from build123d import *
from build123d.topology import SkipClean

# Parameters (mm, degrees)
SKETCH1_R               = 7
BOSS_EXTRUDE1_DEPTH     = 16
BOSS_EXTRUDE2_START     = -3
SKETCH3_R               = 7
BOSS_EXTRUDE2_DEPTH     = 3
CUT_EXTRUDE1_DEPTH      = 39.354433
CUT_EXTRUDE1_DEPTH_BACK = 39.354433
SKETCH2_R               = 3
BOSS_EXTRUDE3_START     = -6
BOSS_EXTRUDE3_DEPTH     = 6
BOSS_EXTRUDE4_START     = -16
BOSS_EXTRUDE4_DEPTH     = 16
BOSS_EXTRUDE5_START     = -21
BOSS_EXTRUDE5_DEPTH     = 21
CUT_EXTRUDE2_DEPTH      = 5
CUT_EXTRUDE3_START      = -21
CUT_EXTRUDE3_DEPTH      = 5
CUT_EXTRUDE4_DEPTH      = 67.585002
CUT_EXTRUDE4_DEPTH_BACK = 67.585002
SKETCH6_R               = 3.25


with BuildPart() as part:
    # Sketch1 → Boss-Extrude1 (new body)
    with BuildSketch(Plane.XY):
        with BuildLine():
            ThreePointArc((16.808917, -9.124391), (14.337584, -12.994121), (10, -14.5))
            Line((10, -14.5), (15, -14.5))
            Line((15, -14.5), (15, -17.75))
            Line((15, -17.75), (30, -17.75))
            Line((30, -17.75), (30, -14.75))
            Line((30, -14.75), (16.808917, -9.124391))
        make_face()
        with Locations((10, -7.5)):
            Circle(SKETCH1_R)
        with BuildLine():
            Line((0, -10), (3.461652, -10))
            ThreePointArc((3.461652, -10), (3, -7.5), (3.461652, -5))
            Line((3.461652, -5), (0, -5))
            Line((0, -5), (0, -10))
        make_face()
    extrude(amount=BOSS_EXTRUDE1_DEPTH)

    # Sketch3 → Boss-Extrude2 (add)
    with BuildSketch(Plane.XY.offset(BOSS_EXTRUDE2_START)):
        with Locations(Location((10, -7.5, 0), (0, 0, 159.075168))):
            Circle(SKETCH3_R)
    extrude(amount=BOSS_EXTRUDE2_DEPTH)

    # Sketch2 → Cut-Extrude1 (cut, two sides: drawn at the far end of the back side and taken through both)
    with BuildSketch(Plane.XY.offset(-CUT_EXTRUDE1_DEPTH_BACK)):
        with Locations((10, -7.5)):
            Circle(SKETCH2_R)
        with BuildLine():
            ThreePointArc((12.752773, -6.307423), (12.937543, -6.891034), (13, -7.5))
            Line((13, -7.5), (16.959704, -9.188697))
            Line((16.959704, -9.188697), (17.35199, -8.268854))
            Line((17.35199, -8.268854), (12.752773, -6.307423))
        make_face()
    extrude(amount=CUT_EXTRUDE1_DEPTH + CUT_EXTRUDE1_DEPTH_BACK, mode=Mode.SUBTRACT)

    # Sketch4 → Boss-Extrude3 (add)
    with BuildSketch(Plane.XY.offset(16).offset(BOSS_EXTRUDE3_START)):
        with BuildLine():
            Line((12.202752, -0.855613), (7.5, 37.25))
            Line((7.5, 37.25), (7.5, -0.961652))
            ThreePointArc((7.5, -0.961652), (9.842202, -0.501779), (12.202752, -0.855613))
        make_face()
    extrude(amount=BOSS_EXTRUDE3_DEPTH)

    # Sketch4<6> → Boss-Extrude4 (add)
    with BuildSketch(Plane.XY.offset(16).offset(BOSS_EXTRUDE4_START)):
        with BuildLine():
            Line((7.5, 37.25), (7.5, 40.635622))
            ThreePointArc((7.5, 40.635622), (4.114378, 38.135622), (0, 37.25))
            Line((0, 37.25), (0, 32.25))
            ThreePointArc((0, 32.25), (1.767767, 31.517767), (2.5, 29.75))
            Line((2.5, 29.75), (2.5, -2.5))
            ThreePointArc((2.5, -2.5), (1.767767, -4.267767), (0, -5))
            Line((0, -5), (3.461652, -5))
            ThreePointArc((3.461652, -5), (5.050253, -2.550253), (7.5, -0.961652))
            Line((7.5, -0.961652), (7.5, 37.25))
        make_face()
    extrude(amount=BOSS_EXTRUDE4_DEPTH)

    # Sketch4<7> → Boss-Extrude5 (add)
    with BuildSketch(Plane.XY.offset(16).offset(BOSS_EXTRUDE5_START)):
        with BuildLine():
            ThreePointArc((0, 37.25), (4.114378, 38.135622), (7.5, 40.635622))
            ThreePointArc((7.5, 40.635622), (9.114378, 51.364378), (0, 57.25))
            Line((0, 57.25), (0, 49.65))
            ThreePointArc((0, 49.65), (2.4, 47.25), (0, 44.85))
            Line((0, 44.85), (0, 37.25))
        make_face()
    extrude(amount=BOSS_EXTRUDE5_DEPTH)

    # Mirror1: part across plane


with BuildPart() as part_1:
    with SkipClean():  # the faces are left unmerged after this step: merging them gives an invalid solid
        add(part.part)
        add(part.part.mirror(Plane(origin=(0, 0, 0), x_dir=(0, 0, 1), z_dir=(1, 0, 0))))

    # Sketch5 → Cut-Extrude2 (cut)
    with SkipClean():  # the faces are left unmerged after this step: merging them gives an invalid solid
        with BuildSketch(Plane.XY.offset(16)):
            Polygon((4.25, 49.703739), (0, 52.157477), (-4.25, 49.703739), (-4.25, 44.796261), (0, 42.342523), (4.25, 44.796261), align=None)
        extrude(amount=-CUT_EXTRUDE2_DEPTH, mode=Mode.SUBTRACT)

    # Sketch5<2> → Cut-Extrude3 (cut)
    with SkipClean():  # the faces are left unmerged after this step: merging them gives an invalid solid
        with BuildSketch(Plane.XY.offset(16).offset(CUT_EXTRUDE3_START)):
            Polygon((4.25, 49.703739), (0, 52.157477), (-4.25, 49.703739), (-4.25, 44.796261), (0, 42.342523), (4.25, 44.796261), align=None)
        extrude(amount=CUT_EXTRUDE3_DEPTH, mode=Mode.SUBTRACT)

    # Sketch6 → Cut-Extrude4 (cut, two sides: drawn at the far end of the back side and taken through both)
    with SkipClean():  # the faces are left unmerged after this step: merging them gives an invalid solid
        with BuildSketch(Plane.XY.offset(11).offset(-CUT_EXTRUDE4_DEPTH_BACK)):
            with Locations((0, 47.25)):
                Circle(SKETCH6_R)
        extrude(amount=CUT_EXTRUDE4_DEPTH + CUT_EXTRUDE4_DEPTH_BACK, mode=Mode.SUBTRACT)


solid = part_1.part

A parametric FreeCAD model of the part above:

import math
import FreeCAD as App
import Part
import Sketcher
Q = App.Units.Quantity


def add_polygon(sketch, points):
    """Adds a closed chain of lines whose ends are joined by coincident constraints."""
    first, n = sketch.GeometryCount, len(points)
    for a, b in zip(points, points[1:] + points[:1]):
        sketch.addGeometry(Part.LineSegment(App.Vector(*a, 0), App.Vector(*b, 0)), False)
    for i in range(n):
        sketch.addConstraint(Sketcher.Constraint("Coincident", first + i, 2, first + (i + 1) % n, 1))

doc = App.newDocument("Part")
body = doc.addObject("PartDesign::Body", "Body")

# Sketch on XY plane
sketch1 = body.newObject("Sketcher::SketchObject", "Sketch")
sketch1.AttachmentSupport = (doc.getObject("XY_Plane"), [""])
sketch1.MapMode = "FlatFace"
sketch1.addGeometry([
    Part.LineSegment(App.Vector(10, -14.5, 0), App.Vector(15, -14.5, 0)),  # 0
    Part.LineSegment(App.Vector(15, -14.5, 0), App.Vector(15, -17.8, 0)),  # 1
    Part.LineSegment(App.Vector(15, -17.8, 0), App.Vector(30, -17.8, 0)),  # 2
    Part.LineSegment(App.Vector(30, -17.8, 0), App.Vector(30, -14.8, 0)),  # 3
    Part.LineSegment(App.Vector(30, -14.8, 0), App.Vector(16.8, -9.1, 0)),  # 4
    Part.ArcOfCircle(Part.Circle(App.Vector(10, -7.5, 0), App.Vector(0, 0, 1), 7), math.radians(-13), math.radians(159)),  # 5
    Part.LineSegment(App.Vector(3.5, -5, 0), App.Vector(0, -5, 0)),  # 6
    Part.LineSegment(App.Vector(0, -5, 0), App.Vector(0, -10, 0)),  # 7
    Part.LineSegment(App.Vector(0, -10, 0), App.Vector(3.5, -10, 0)),  # 8
    Part.ArcOfCircle(Part.Circle(App.Vector(10, -7.5, 0), App.Vector(0, 0, 1), 7), math.radians(-159), math.radians(-90)),  # 9
], False)
sketch1.addConstraint([
    Sketcher.Constraint("Coincident", 0, 2, 1, 1),
    Sketcher.Constraint("Coincident", 1, 2, 2, 1),
    Sketcher.Constraint("Coincident", 2, 2, 3, 1),
    Sketcher.Constraint("Coincident", 3, 2, 4, 1),
    Sketcher.Constraint("Coincident", 4, 2, 5, 1),
    Sketcher.Constraint("Coincident", 5, 2, 6, 1),
    Sketcher.Constraint("Coincident", 6, 2, 7, 1),
    Sketcher.Constraint("Coincident", 7, 2, 8, 1),
    Sketcher.Constraint("Coincident", 8, 2, 9, 1),
    Sketcher.Constraint("Tangent", 9, 2, 0, 1),
    Sketcher.Constraint("Horizontal", 0),
    Sketcher.Constraint("Vertical", 1),
    Sketcher.Constraint("Horizontal", 2),
    Sketcher.Constraint("Vertical", 3),
    Sketcher.Constraint("Horizontal", 6),
    Sketcher.Constraint("Vertical", 7),
    Sketcher.Constraint("Horizontal", 8),
    Sketcher.Constraint("Coincident", 9, 3, 5, 3),
    Sketcher.Constraint("Equal", 5, 9),
    Sketcher.Constraint("PointOnObject", 6, 2, -2),
    Sketcher.Constraint("Vertical", 5, 2, 8, 2),
    Sketcher.Constraint("Equal", 0, 7),
    Sketcher.Constraint("Radius", 5, 7.0),
    Sketcher.Constraint("DistanceX", 0, 1, 0, 2, 5.0),
    Sketcher.Constraint("DistanceX", 2, 1, 2, 2, 15.0),
    Sketcher.Constraint("DistanceY", 3, 1, 3, 2, 3.0),
    Sketcher.Constraint("DistanceX", -1, 1, 5, 3, 10.0),
    Sketcher.Constraint("DistanceY", 5, 2, -1, 1, 5.0),
    Sketcher.Constraint("DistanceY", 1, 2, 1, 1, 3.25),
    Sketcher.Constraint("DistanceY", 4, 2, -1, 1, 9.124391),
])
pad1 = body.newObject("PartDesign::Pad", "Pad")
pad1.Profile = sketch1
pad1.Length = 16

# Sketch on XY plane
sketch2 = body.newObject("Sketcher::SketchObject", "Sketch001")
sketch2.AttachmentSupport = (doc.getObject("XY_Plane"), [""])
sketch2.MapMode = "FlatFace"
sketch2.AttachmentOffset = App.Placement(App.Vector(0, 0, -3), App.Rotation())
sketch2.addGeometry(Part.Circle(App.Vector(10, -8, 0), App.Vector(0, 0, 1), 7), False)
sketch2.addConstraint([
    Sketcher.Constraint("Diameter", 0, 14.0),
    Sketcher.Constraint("DistanceX", -1, 1, 0, 3, 10.0),
    Sketcher.Constraint("DistanceY", 0, 3, -1, 1, 7.5),
])
pad2 = body.newObject("PartDesign::Pad", "Pad001")
pad2.Profile = sketch2
pad2.Length = 3

# Sketch on XY plane
sketch3 = body.newObject("Sketcher::SketchObject", "Sketch002")
sketch3.AttachmentSupport = (doc.getObject("XY_Plane"), [""])
sketch3.MapMode = "FlatFace"
sketch3.addGeometry([
    Part.ArcOfCircle(Part.Circle(App.Vector(10, -7.5, 0), App.Vector(0, 0, 1), 3), math.radians(23), math.radians(360)),
    Part.LineSegment(App.Vector(13, -7.5, 0), App.Vector(17, -9.2, 0)),
    Part.LineSegment(App.Vector(17, -9.2, 0), App.Vector(17.4, -8.3, 0)),
    Part.LineSegment(App.Vector(17.4, -8.3, 0), App.Vector(12.8, -6.3, 0)),
], False)
sketch3.addConstraint([
    Sketcher.Constraint("Coincident", 0, 2, 1, 1),
    Sketcher.Constraint("Coincident", 1, 2, 2, 1),
    Sketcher.Constraint("Coincident", 2, 2, 3, 1),
    Sketcher.Constraint("Coincident", 3, 2, 0, 1),
    Sketcher.Constraint("Perpendicular", 1, 2),
    Sketcher.Constraint("Perpendicular", 2, 3),
    Sketcher.Constraint("Radius", 0, 3.0),
    Sketcher.Constraint("Distance", 2, 1.0),
    Sketcher.Constraint("Distance", 3, 5.000001),
    Sketcher.Constraint("DistanceX", -1, 1, 0, 3, 10.0),
    Sketcher.Constraint("DistanceY", 0, 3, -1, 1, 7.5),
    Sketcher.Constraint("DistanceY", 0, 2, -1, 1, 7.5),
    Sketcher.Constraint("Distance", 1, 4.304759),
])
pocket1 = body.newObject("PartDesign::Pocket", "Pocket")
pocket1.Profile = sketch3
pocket1.Type = "ThroughAll"
pocket1.Midplane = True

# Sketch on XY plane
sketch4 = body.newObject("Sketcher::SketchObject", "Sketch003")
sketch4.AttachmentSupport = (doc.getObject("XY_Plane"), [""])
sketch4.MapMode = "FlatFace"
sketch4.AttachmentOffset = App.Placement(App.Vector(0, 0, 10), App.Rotation())
sketch4.addGeometry([
    Part.LineSegment(App.Vector(12.2, -0.9, 0), App.Vector(7.5, 37.2, 0)),
    Part.LineSegment(App.Vector(7.5, 37.2, 0), App.Vector(7.5, -1, 0)),
    Part.ArcOfCircle(Part.Circle(App.Vector(10, -7.5, 0), App.Vector(0, 0, 1), 7), math.radians(72), math.radians(111)),
], False)
sketch4.addConstraint([
    Sketcher.Constraint("Coincident", 0, 2, 1, 1),
    Sketcher.Constraint("Coincident", 1, 2, 2, 2),
    Sketcher.Constraint("Coincident", 2, 1, 0, 1),
    Sketcher.Constraint("Vertical", 1),
    Sketcher.Constraint("DistanceX", -1, 1, 2, 3, 10.0),
    Sketcher.Constraint("DistanceX", -1, 1, 0, 2, 7.5),
    Sketcher.Constraint("DistanceY", -1, 1, 0, 2, 37.25),
    Sketcher.Constraint("Radius", 2, 6.999997),
    Sketcher.Constraint("Distance", 0, 38.394708),
    Sketcher.Constraint("DistanceY", 1, 2, 1, 1, 38.211652),
])
pad3 = body.newObject("PartDesign::Pad", "Pad002")
pad3.Profile = sketch4
pad3.Length = 6

# Sketch on XY plane
sketch5 = body.newObject("Sketcher::SketchObject", "Sketch004")
sketch5.AttachmentSupport = (doc.getObject("XY_Plane"), [""])
sketch5.MapMode = "FlatFace"
sketch5.addGeometry([
    Part.ArcOfCircle(Part.Circle(App.Vector(0, 47.3, 0), App.Vector(0, 0, 1), 10), math.radians(-90), math.radians(-41)),  # 0
    Part.LineSegment(App.Vector(0, 37.2, 0), App.Vector(0, 32.2, 0)),  # 1
    Part.ArcOfCircle(Part.Circle(App.Vector(0, 29.8, 0), App.Vector(0, 0, 1), 2.5), math.radians(0), math.radians(90)),  # 2
    Part.LineSegment(App.Vector(2.5, 29.8, 0), App.Vector(2.5, -2.5, 0)),  # 3
    Part.ArcOfCircle(Part.Circle(App.Vector(0, -2.5, 0), App.Vector(0, 0, 1), 2.5), math.radians(-90), math.radians(0)),  # 4
    Part.LineSegment(App.Vector(0, -5, 0), App.Vector(3.5, -5, 0)),  # 5
    Part.ArcOfCircle(Part.Circle(App.Vector(10, -7.5, 0), App.Vector(0, 0, 1), 7), math.radians(111), math.radians(159)),  # 6
    Part.LineSegment(App.Vector(7.5, -1, 0), App.Vector(7.5, 40.6, 0)),  # 7
], False)
sketch5.addConstraint([
    Sketcher.Constraint("Coincident", 0, 1, 1, 1),
    Sketcher.Constraint("Coincident", 1, 2, 2, 2),
    Sketcher.Constraint("Tangent", 2, 1, 3, 1),
    Sketcher.Constraint("Tangent", 3, 2, 4, 2),
    Sketcher.Constraint("Tangent", 4, 1, 5, 1),
    Sketcher.Constraint("Coincident", 5, 2, 6, 2),
    Sketcher.Constraint("Coincident", 6, 1, 7, 1),
    Sketcher.Constraint("Coincident", 7, 2, 0, 2),
    Sketcher.Constraint("Vertical", 1),
    Sketcher.Constraint("Vertical", 3),
    Sketcher.Constraint("Horizontal", 5),
    Sketcher.Constraint("Vertical", 7),
    Sketcher.Constraint("Equal", 2, 4),
    Sketcher.Constraint("PointOnObject", 0, 3, -2),
    Sketcher.Constraint("PointOnObject", 2, 3, -2),
    Sketcher.Constraint("PointOnObject", 0, 1, -2),
    Sketcher.Constraint("Radius", 2, 2.5),
    Sketcher.Constraint("DistanceY", 1, 2, 1, 1, 5.0),
    Sketcher.Constraint("DistanceY", 4, 1, -1, 1, 5.0),
    Sketcher.Constraint("DistanceX", 3, 2, 6, 1, 5.0),
    Sketcher.Constraint("DistanceY", 3, 2, 3, 1, 32.25),
    Sketcher.Constraint("Radius", 0, 10.000003),
    Sketcher.Constraint("Radius", 6, 7.000002),
    Sketcher.Constraint("DistanceX", 5, 1, 5, 2, 3.461652),
    Sketcher.Constraint("DistanceY", 7, 1, 7, 2, 41.597274),
])
pad4 = body.newObject("PartDesign::Pad", "Pad003")
pad4.Profile = sketch5
pad4.Length = 16

# Sketch on XY plane
sketch6 = body.newObject("Sketcher::SketchObject", "Sketch005")
sketch6.AttachmentSupport = (doc.getObject("XY_Plane"), [""])
sketch6.MapMode = "FlatFace"
sketch6.AttachmentOffset = App.Placement(App.Vector(0, 0, -5), App.Rotation())
sketch6.addGeometry([
    Part.ArcOfCircle(Part.Circle(App.Vector(0, 47.3, 0), App.Vector(0, 0, 1), 10), math.radians(-90), math.radians(-41)),  # 0
    Part.ArcOfCircle(Part.Circle(App.Vector(0, 47.2, 0), App.Vector(0, 0, 1), 10), math.radians(-41), math.radians(90)),  # 1
    Part.LineSegment(App.Vector(0, 57.2, 0), App.Vector(0, 49.6, 0)),  # 2
    Part.ArcOfCircle(Part.Circle(App.Vector(0, 47.2, 0), App.Vector(0, 0, 1), 2.4), math.radians(-90), math.radians(90)),  # 3
    Part.LineSegment(App.Vector(0, 44.9, 0), App.Vector(0, 37.2, 0)),  # 4
], False)
sketch6.addConstraint([
    Sketcher.Constraint("Tangent", 0, 2, 1, 1),
    Sketcher.Constraint("Coincident", 1, 2, 2, 1),
    Sketcher.Constraint("Coincident", 2, 2, 3, 2),
    Sketcher.Constraint("Coincident", 3, 1, 4, 1),
    Sketcher.Constraint("Coincident", 4, 2, 0, 1),
    Sketcher.Constraint("Vertical", 2),
    Sketcher.Constraint("Vertical", 4),
    Sketcher.Constraint("Coincident", 3, 3, 0, 3),
    Sketcher.Constraint("PointOnObject", 0, 3, -2),
    Sketcher.Constraint("PointOnObject", 1, 3, -2),
    Sketcher.Constraint("PointOnObject", 1, 2, -2),
    Sketcher.Constraint("PointOnObject", 3, 1, -2),
    Sketcher.Constraint("Radius", 1, 10.0),
    Sketcher.Constraint("Radius", 3, 2.4),
    Sketcher.Constraint("DistanceX", -1, 1, 0, 2, 7.5),
    Sketcher.Constraint("DistanceY", -1, 1, 1, 3, 47.25),
])
pad5 = body.newObject("PartDesign::Pad", "Pad004")
pad5.Profile = sketch6
pad5.Length = 21
body2 = doc.addObject("PartDesign::Body", "Body001")
doc.recompute()

body2.BaseFeature = body
doc.recompute()

mirroring = doc.addObject("Part::Mirroring", "Mirroring")
mirroring.Source = body
mirroring.Base = App.Vector(0, 0, 0)
mirroring.Normal = App.Vector(1, 0, 0)
body3 = doc.addObject("PartDesign::Body", "Body002")
body3.BaseFeature = mirroring
boolean = body2.newObject("PartDesign::Boolean", "Boolean")
boolean.Type = "Fuse"
boolean.addObjects([body3])
doc.recompute()

# Sketch on XY plane
sketch7 = body2.newObject("Sketcher::SketchObject", "Sketch006")
sketch7.AttachmentSupport = (doc.getObject("XY_Plane001"), [""])
sketch7.MapMode = "FlatFace"
sketch7.AttachmentOffset = App.Placement(App.Vector(0, 0, 16), App.Rotation())
add_polygon(sketch7, [(4.2, 49.7), (0, 52.2), (-4.2, 49.7), (-4.2, 44.8), (0, 42.3), (4.2, 44.8)])  # lines 0-5
sketch7.addConstraint([
    Sketcher.Constraint("Vertical", 2),
    Sketcher.Constraint("Vertical", 5),
    Sketcher.Constraint("Symmetric", 2, 2, 4, 2, -2),
    Sketcher.Constraint("PointOnObject", 0, 2, -2),
    Sketcher.Constraint("PointOnObject", 3, 2, -2),
    Sketcher.Constraint("Parallel", 0, 3),
    Sketcher.Constraint("Parallel", 1, 4),
    Sketcher.Constraint("Angle", 0, Q("150.000007 deg")),
    Sketcher.Constraint("DistanceX", 2, 2, 4, 2, 8.5),
    Sketcher.Constraint("DistanceY", 2, 2, 2, 1, 4.907478),
    Sketcher.Constraint("DistanceY", -1, 1, 1, 2, 49.703739),
])
pocket2 = body2.newObject("PartDesign::Pocket", "Pocket001")
pocket2.Profile = sketch7
pocket2.Length = 5

# Sketch on XY plane
sketch8 = body2.newObject("Sketcher::SketchObject", "Sketch007")
sketch8.AttachmentSupport = (doc.getObject("XY_Plane001"), [""])
sketch8.MapMode = "FlatFace"
sketch8.AttachmentOffset = App.Placement(App.Vector(0, 0, -5), App.Rotation())
add_polygon(sketch8, [(4.2, 49.7), (0, 52.2), (-4.2, 49.7), (-4.2, 44.8), (0, 42.3), (4.2, 44.8)])  # lines 0-5
sketch8.addConstraint([
    Sketcher.Constraint("Vertical", 2),
    Sketcher.Constraint("Vertical", 5),
    Sketcher.Constraint("Symmetric", 2, 2, 4, 2, -2),
    Sketcher.Constraint("PointOnObject", 0, 2, -2),
    Sketcher.Constraint("PointOnObject", 3, 2, -2),
    Sketcher.Constraint("Parallel", 0, 3),
    Sketcher.Constraint("Parallel", 1, 4),
    Sketcher.Constraint("Angle", 0, Q("150.000007 deg")),
    Sketcher.Constraint("DistanceX", 2, 2, 4, 2, 8.5),
    Sketcher.Constraint("DistanceY", 2, 2, 2, 1, 4.907478),
    Sketcher.Constraint("DistanceY", -1, 1, 1, 2, 49.703739),
])
pocket3 = body2.newObject("PartDesign::Pocket", "Pocket002")
pocket3.Profile = sketch8
pocket3.Length = 5
pocket3.Reversed = True

# Sketch on XY plane
sketch9 = body2.newObject("Sketcher::SketchObject", "Sketch008")
sketch9.AttachmentSupport = (doc.getObject("XY_Plane001"), [""])
sketch9.MapMode = "FlatFace"
sketch9.AttachmentOffset = App.Placement(App.Vector(0, 0, 11), App.Rotation())
sketch9.addGeometry(Part.Circle(App.Vector(0, 47.2, 0), App.Vector(0, 0, 1), 3.2), False)
sketch9.addConstraint([
    Sketcher.Constraint("PointOnObject", 0, 3, -2),
    Sketcher.Constraint("Diameter", 0, 6.5),
    Sketcher.Constraint("DistanceY", -1, 1, 0, 3, 47.25),
])
pocket4 = body2.newObject("PartDesign::Pocket", "Pocket003")
pocket4.Profile = sketch9
pocket4.Type = "ThroughAll"
pocket4.Midplane = True
mirroring.Visibility = False

doc.recompute()
